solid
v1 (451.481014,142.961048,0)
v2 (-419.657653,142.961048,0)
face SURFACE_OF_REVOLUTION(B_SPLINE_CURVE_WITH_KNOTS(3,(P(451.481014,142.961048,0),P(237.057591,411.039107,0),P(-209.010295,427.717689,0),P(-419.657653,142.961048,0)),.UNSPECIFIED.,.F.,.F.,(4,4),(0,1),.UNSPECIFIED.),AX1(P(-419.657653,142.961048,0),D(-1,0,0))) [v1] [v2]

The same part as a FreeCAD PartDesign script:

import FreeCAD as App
import Part
import Sketcher
from FreeCAD import Vector
Q = App.Units.Quantity

doc = App.newDocument("Part")
body = doc.addObject("PartDesign::Body", "Body")

sketch1 = doc.addObject("Sketcher::SketchObject", "Sketch")
body.addObject(sketch1)
sketch1.AttachmentSupport = (doc.XY_Plane, [""])
sketch1.MapMode = "FlatFace"
sketch1.addGeometry([
    Part.LineSegment(Vector(-419.657653, 142.961048, 0), Vector(451.481014, 142.961048, 0)),
    Part.BSplineCurve([Vector(-419.657653, 142.961048, 0), Vector(-209.010295, 427.717689, 0), Vector(237.057591, 411.039107, 0), Vector(451.481014, 142.961048, 0)], [4, 4], [0, 1], False, 3, [1, 1, 1, 1], False),
], False)
sketch1.addGeometry(Part.LineSegment(Vector(-419.657653, 142.961048, 0), Vector(451.481014, 142.961048, 0)), True)
sketch1.addConstraint([
    Sketcher.Constraint("Block", 1),
    Sketcher.Constraint("Coincident", 0, 1, 1, 1),
    Sketcher.Constraint("Coincident", 1, 2, 0, 2),
    Sketcher.Constraint("Horizontal", 2),
    Sketcher.Constraint("Coincident", 2, 1, 0, 1),
    Sketcher.Constraint("DistanceX", 2, 1, 2, 2, Q("871.138667 mm")),
])
revolution = doc.addObject("PartDesign::Revolution", "Revolution")
body.addObject(revolution)
revolution.Profile = sketch1
revolution.ReferenceAxis = (sketch1, ["Axis0"])
revolution.Angle = 360

doc.recompute()
